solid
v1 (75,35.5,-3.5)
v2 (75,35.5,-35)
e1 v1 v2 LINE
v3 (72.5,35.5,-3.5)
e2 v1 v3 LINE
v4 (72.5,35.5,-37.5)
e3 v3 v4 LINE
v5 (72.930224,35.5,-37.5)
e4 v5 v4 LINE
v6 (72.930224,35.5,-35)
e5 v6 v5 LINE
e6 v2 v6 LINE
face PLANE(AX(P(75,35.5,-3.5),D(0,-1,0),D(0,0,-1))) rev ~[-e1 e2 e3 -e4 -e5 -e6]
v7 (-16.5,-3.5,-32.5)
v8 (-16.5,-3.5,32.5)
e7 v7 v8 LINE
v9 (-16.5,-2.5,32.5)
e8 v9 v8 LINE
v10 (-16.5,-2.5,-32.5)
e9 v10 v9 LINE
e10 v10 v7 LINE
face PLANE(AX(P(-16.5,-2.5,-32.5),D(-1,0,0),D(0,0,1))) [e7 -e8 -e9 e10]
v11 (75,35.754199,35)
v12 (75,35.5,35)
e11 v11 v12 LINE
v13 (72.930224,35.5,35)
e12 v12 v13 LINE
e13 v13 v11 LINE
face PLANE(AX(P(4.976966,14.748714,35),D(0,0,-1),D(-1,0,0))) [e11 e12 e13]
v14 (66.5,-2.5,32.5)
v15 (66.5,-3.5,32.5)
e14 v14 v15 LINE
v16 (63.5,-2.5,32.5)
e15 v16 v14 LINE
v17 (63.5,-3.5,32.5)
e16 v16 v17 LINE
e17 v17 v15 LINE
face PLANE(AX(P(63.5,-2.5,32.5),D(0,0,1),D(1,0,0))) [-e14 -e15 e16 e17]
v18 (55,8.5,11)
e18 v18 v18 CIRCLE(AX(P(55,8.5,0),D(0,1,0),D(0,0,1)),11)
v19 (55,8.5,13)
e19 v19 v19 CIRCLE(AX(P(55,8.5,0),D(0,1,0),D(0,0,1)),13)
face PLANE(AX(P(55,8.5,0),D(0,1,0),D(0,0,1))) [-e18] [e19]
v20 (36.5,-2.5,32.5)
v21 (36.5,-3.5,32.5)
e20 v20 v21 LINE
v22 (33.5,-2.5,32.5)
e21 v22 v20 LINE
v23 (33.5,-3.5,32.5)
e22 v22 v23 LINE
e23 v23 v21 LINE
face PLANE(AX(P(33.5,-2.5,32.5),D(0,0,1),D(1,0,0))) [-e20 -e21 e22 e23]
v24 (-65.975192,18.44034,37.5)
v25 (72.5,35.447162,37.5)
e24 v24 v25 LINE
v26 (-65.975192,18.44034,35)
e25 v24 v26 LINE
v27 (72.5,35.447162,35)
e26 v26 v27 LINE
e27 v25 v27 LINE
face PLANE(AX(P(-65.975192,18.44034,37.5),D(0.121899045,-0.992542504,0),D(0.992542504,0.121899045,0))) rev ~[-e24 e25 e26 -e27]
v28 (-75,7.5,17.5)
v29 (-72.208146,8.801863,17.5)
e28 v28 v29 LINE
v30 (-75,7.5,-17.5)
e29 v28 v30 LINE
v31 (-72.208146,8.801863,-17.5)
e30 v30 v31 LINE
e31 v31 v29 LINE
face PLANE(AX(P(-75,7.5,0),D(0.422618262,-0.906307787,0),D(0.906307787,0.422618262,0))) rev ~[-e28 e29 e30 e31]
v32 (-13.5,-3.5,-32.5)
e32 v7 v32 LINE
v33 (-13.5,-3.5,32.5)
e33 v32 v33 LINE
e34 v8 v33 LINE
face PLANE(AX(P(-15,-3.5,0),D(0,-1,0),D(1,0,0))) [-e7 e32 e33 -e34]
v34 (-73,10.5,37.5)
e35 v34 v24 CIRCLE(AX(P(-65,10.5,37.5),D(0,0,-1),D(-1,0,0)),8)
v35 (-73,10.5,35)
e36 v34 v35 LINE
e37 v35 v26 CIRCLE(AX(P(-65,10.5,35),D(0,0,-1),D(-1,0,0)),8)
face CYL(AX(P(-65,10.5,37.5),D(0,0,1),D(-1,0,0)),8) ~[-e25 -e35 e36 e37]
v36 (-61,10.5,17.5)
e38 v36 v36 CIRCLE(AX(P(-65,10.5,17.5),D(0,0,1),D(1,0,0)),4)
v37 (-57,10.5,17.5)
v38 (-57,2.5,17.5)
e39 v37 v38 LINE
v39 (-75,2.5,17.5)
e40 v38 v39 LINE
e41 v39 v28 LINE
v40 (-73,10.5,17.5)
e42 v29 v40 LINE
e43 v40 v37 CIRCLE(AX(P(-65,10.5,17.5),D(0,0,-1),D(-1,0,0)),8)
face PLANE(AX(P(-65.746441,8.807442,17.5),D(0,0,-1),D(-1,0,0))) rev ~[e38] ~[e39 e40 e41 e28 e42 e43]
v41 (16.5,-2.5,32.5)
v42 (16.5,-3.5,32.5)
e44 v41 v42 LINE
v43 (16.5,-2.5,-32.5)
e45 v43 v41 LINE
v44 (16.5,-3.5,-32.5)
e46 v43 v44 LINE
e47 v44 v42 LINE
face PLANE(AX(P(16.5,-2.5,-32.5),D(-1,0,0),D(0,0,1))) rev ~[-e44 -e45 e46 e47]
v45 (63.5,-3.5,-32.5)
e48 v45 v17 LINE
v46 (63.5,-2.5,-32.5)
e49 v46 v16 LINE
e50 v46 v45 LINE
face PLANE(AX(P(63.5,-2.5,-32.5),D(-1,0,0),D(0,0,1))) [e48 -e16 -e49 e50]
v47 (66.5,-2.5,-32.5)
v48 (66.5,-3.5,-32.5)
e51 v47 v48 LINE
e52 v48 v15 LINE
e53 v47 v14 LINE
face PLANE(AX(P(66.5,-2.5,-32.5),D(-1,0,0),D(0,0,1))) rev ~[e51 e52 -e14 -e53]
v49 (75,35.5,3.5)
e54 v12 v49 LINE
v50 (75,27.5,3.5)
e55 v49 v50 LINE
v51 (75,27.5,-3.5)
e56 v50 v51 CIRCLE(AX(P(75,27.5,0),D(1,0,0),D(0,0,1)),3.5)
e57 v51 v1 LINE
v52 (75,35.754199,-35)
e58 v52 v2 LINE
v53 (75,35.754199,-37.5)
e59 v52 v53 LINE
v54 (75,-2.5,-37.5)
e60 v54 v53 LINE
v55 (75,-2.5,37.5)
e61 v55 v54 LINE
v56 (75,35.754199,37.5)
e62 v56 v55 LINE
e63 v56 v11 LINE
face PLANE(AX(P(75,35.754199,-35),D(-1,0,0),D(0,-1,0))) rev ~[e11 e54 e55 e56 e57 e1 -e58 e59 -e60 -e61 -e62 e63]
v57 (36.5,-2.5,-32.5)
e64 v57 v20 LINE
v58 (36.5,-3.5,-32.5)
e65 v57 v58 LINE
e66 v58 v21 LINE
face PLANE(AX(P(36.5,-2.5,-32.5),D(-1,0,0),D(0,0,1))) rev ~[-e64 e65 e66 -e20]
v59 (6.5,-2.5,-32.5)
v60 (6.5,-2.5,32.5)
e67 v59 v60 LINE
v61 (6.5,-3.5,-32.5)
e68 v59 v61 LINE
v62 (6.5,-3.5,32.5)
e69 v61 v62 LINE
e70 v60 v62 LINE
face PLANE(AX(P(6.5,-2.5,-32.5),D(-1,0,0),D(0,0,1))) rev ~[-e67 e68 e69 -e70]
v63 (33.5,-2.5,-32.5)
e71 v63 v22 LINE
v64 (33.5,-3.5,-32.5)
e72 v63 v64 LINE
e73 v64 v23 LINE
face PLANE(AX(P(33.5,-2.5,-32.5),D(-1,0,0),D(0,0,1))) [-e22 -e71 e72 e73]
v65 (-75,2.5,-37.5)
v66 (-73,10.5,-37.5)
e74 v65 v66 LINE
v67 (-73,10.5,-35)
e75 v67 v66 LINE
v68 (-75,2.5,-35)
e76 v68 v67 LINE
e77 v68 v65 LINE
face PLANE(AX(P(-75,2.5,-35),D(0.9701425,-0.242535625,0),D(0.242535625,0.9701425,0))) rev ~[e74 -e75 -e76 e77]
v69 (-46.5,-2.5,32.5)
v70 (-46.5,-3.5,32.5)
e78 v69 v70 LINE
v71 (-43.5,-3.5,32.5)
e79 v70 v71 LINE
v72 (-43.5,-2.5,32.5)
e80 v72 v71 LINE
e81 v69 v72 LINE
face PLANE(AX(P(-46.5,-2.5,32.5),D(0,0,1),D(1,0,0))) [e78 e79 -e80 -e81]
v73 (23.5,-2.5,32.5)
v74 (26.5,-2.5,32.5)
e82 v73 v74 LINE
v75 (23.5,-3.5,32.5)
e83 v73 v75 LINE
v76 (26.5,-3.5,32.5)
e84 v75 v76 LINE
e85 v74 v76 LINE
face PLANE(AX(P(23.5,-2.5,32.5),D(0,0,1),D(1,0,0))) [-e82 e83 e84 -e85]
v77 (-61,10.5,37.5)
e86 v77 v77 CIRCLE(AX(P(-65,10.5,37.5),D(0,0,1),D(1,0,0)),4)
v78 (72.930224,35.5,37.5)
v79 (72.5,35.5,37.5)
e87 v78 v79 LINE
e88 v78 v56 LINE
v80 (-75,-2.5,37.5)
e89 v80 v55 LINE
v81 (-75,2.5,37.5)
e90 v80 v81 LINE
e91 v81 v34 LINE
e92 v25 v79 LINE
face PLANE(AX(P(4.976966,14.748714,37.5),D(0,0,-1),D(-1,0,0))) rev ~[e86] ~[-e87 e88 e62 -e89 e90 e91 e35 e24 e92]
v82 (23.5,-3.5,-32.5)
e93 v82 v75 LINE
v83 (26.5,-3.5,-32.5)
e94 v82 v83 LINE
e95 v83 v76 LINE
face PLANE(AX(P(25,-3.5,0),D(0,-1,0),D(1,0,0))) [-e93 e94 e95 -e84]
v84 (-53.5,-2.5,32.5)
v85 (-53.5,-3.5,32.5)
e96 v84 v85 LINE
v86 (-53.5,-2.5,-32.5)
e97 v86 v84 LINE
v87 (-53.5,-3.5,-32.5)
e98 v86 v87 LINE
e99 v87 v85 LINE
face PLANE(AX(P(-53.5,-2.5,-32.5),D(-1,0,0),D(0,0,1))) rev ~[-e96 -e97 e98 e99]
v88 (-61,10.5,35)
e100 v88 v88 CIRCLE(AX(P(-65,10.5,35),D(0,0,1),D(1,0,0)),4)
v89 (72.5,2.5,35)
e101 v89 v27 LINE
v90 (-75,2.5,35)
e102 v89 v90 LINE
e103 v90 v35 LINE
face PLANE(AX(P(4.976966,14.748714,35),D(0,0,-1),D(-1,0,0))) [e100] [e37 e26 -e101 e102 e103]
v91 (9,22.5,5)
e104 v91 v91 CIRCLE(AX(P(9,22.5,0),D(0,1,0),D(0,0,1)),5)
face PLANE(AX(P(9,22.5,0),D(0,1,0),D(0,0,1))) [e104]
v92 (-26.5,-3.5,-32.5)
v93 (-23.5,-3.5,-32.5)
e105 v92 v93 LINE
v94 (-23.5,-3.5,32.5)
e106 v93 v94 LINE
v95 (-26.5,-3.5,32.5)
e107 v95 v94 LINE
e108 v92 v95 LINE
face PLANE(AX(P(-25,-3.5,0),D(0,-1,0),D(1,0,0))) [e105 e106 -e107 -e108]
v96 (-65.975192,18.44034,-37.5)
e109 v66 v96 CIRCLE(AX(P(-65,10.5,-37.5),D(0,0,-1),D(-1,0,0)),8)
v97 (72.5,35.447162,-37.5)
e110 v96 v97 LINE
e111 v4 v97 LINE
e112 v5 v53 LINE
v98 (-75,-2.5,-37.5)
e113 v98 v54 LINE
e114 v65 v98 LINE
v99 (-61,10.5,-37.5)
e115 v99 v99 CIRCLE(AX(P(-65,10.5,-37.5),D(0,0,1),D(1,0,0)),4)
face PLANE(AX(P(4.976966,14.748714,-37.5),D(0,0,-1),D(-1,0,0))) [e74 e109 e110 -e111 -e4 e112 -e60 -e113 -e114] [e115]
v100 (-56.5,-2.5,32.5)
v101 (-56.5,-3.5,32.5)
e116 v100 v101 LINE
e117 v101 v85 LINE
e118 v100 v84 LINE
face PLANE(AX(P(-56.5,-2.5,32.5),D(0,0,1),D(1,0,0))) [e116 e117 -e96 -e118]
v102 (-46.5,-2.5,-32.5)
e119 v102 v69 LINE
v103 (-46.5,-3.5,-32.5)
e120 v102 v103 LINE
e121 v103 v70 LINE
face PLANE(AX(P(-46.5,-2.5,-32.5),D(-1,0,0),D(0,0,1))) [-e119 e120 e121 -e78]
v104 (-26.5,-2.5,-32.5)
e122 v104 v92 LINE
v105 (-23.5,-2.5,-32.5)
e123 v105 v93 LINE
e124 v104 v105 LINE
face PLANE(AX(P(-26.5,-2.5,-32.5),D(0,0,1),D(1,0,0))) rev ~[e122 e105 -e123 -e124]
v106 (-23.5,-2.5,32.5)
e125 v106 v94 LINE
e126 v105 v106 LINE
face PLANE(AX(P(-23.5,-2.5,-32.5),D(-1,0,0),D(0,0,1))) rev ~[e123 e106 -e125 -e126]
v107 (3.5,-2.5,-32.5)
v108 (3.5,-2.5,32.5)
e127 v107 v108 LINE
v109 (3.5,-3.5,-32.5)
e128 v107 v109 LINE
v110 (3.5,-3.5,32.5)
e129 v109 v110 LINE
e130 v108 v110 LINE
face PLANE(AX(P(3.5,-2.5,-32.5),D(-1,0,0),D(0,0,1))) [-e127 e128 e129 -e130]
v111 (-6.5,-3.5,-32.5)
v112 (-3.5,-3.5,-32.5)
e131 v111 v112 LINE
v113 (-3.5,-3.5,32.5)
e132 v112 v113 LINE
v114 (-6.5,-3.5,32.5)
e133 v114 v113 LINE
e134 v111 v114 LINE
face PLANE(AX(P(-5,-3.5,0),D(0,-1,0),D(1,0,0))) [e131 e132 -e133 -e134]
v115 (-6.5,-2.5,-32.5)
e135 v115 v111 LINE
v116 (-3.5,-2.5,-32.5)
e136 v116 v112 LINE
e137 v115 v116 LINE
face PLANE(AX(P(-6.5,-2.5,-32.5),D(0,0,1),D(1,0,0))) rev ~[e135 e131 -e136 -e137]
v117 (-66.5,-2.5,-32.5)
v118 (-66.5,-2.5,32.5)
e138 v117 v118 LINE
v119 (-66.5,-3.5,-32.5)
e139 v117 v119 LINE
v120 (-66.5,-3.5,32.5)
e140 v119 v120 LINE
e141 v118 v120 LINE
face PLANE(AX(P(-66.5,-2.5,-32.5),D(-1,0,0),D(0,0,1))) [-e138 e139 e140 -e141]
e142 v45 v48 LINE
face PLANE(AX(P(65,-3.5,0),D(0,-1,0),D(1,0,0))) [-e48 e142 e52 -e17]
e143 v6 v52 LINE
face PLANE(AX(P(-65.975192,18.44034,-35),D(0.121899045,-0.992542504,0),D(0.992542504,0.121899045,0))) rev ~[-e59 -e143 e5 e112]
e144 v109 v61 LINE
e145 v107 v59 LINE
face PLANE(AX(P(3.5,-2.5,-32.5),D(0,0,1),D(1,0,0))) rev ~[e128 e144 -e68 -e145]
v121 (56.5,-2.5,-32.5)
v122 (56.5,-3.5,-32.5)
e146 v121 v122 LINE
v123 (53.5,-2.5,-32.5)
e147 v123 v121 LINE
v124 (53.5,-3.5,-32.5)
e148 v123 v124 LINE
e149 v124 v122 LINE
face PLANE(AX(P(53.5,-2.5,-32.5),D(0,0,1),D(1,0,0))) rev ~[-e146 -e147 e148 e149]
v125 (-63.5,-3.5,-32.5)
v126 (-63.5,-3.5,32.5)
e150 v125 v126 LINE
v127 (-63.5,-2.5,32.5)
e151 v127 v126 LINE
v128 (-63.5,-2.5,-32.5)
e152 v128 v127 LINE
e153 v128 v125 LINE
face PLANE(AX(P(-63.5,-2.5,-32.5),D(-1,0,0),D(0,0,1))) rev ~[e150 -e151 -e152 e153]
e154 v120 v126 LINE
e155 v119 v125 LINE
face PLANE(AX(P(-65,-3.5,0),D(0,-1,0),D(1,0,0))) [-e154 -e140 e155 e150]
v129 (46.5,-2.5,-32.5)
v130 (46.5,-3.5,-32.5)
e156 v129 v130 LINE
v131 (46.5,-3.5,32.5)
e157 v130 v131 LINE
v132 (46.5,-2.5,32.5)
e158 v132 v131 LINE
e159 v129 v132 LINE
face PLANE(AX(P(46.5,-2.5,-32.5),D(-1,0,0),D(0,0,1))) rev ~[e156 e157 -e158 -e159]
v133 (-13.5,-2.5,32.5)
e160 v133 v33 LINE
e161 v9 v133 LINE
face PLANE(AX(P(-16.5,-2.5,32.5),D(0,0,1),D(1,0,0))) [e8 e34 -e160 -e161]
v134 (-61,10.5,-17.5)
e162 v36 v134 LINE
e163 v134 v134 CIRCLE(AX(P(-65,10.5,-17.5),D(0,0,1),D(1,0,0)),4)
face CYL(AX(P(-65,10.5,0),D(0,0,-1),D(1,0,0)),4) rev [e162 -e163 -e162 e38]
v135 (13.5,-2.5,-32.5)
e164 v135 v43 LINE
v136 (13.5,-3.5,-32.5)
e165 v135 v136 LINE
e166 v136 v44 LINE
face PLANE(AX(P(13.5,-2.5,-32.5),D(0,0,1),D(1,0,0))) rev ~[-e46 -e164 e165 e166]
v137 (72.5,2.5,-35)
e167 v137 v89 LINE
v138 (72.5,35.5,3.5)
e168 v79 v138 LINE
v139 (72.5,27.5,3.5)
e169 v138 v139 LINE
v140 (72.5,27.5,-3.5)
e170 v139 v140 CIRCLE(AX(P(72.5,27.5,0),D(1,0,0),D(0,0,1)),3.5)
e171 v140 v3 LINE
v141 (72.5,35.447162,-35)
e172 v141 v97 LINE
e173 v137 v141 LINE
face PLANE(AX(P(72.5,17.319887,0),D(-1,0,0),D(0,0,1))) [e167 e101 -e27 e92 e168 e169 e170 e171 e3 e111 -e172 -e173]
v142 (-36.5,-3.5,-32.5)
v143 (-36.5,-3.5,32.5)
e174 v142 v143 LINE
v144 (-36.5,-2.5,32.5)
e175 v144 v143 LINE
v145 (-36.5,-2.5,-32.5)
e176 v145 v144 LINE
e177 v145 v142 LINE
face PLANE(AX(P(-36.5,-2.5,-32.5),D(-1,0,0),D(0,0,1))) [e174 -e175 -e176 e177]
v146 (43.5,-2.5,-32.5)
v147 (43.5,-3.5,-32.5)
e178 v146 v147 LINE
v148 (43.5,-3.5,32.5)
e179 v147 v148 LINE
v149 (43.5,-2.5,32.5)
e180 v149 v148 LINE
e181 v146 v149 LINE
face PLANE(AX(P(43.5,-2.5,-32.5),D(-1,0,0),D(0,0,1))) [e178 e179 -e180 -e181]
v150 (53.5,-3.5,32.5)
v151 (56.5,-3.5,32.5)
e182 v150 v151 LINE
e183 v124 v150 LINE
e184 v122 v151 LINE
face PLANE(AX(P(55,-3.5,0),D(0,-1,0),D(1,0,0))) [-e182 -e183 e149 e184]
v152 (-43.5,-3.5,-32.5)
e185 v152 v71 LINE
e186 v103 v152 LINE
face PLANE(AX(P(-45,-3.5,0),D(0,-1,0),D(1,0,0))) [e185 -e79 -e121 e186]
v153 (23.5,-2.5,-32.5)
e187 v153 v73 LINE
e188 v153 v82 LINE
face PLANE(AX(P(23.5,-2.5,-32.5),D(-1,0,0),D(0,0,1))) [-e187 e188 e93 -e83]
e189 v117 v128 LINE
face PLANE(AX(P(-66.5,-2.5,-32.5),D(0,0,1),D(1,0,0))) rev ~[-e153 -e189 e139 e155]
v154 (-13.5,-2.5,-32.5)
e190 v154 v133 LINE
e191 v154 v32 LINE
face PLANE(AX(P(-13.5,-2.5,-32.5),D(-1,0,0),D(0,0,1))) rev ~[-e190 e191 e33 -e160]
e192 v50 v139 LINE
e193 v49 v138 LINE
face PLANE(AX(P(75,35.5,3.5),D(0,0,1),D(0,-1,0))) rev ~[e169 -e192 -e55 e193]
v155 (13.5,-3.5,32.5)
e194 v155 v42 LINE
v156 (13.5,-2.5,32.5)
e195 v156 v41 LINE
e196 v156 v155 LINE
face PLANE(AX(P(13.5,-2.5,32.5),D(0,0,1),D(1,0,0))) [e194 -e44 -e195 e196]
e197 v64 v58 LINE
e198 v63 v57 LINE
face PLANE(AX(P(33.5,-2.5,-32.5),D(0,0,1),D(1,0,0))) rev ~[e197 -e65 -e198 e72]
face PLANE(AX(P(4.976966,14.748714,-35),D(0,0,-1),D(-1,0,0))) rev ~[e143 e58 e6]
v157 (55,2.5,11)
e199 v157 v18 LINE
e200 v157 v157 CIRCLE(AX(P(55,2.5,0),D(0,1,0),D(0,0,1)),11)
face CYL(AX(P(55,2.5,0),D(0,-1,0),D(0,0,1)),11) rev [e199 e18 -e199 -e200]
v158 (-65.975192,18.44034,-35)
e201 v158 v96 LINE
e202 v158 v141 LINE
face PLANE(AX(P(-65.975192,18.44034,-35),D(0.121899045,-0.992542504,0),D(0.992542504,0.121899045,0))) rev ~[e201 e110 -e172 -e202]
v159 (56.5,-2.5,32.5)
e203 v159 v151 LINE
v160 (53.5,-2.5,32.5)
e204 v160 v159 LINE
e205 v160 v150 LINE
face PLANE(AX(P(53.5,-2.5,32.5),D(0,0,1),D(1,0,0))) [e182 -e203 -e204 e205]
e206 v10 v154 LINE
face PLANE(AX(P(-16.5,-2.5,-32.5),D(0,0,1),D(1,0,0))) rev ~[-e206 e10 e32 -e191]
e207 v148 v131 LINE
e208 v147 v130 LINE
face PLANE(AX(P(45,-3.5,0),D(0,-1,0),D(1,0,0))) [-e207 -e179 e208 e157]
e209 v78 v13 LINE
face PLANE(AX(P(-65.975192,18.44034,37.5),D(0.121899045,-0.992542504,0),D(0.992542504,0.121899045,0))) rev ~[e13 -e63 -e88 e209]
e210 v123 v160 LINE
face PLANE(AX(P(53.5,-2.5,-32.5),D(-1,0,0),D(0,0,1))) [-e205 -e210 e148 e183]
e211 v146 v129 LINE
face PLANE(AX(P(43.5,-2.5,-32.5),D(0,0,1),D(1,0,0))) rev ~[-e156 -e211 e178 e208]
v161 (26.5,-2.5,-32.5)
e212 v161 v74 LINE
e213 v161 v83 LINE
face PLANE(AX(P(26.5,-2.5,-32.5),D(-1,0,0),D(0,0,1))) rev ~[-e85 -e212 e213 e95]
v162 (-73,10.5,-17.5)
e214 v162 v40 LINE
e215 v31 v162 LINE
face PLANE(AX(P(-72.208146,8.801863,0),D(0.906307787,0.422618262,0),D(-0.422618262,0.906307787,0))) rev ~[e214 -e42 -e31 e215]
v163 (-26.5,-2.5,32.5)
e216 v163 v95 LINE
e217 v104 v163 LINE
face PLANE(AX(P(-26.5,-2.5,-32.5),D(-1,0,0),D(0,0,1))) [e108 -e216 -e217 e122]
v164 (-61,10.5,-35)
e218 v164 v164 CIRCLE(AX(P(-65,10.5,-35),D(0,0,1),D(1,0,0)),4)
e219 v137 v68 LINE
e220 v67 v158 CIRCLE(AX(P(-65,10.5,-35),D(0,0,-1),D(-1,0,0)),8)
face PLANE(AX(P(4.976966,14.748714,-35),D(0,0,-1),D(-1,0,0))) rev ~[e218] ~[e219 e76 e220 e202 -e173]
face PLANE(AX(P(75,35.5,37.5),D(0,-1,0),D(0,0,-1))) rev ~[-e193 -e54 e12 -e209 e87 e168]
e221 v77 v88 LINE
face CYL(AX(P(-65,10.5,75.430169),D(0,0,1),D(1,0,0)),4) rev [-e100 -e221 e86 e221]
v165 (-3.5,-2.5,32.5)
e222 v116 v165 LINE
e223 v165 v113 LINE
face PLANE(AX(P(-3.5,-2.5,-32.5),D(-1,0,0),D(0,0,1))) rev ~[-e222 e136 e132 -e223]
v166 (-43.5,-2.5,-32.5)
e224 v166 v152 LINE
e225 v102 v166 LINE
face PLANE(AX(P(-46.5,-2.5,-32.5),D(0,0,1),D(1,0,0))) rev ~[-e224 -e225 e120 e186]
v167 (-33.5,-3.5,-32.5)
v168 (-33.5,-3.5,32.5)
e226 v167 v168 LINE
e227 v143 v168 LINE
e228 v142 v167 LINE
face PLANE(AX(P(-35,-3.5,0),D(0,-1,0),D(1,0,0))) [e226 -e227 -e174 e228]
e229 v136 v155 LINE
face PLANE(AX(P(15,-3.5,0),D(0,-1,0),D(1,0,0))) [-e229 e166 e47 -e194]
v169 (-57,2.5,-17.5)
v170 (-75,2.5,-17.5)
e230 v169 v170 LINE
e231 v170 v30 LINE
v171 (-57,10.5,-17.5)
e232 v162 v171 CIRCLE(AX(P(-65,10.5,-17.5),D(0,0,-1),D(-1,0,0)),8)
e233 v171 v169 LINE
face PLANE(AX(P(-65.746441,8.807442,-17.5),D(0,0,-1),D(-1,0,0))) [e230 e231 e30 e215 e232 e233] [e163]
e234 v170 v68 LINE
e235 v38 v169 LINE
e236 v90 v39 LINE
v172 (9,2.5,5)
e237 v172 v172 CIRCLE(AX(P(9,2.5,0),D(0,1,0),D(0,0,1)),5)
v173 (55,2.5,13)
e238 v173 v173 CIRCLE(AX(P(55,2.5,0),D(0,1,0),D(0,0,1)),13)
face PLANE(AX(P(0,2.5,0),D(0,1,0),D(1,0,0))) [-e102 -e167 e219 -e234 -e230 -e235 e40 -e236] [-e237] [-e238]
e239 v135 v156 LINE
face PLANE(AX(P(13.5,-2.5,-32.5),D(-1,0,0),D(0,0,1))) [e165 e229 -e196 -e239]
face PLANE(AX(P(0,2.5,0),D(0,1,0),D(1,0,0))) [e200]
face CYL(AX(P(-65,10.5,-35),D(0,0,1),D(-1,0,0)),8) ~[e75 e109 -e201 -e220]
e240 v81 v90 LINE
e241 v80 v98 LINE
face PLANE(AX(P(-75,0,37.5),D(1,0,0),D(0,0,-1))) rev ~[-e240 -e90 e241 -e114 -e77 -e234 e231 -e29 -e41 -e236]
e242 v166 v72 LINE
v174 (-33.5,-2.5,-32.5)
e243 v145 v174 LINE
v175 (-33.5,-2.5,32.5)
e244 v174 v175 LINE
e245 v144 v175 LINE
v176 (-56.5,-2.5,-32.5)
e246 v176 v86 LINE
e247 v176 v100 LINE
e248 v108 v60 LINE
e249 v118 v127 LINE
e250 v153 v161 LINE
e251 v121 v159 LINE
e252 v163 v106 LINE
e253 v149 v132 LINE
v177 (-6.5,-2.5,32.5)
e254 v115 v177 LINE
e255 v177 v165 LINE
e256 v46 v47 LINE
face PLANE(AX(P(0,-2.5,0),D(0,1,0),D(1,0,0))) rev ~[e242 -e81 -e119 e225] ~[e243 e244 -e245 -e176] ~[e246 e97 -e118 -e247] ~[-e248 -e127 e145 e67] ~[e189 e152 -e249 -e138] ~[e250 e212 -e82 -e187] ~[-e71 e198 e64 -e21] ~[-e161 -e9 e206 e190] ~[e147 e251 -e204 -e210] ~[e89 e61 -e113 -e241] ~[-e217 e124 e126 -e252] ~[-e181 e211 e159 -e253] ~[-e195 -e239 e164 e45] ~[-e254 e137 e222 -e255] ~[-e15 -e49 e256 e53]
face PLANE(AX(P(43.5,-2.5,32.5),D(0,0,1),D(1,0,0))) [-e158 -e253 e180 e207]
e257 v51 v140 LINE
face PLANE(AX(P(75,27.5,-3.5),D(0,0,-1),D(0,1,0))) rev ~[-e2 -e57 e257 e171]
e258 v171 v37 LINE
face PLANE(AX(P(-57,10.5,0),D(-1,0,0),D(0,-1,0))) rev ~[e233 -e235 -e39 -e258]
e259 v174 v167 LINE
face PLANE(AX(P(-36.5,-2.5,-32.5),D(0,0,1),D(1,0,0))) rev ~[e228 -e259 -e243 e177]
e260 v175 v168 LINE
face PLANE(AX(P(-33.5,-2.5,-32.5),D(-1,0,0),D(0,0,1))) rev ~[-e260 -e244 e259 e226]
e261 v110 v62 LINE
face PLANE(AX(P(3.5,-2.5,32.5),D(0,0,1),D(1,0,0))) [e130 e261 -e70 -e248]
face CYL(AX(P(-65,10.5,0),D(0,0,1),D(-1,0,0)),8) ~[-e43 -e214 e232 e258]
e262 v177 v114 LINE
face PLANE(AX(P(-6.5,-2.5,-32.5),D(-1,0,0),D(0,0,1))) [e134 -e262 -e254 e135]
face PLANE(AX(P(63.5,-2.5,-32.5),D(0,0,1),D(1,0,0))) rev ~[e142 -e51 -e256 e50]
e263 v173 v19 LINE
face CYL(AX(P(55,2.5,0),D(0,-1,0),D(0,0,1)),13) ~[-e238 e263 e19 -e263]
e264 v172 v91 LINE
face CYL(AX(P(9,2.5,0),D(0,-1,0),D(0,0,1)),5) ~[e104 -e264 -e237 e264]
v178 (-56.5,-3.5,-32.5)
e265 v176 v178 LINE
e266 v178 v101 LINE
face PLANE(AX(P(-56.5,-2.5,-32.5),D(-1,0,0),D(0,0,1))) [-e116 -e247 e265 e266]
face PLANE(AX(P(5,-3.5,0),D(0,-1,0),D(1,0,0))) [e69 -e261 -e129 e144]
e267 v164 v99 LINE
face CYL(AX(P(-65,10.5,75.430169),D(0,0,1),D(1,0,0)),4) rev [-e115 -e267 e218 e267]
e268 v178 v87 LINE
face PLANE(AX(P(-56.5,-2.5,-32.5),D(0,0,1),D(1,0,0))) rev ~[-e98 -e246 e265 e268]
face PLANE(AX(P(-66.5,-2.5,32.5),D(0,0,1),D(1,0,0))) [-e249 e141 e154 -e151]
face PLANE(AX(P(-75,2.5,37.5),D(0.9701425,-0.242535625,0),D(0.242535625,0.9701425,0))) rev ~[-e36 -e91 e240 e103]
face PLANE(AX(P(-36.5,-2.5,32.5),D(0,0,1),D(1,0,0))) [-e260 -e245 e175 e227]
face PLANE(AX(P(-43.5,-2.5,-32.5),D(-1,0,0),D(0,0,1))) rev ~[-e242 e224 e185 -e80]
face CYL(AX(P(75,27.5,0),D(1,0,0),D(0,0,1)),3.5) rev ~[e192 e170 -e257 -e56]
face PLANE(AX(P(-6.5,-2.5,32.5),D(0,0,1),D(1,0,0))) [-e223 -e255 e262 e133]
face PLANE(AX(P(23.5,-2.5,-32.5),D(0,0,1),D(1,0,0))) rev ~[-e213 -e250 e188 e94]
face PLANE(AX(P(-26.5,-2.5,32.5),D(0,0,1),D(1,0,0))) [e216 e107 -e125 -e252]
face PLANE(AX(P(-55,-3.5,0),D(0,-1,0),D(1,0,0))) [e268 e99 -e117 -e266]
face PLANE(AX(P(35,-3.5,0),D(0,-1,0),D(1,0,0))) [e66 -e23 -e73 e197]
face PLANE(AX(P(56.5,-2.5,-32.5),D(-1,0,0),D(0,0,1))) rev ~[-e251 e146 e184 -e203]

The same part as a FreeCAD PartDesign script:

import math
import FreeCAD as App
import Part
import Sketcher
Q = App.Units.Quantity

doc = App.newDocument("Part")
body = doc.addObject("PartDesign::Body", "Body")

# Sketch on XZ plane
sketch1 = body.newObject("Sketcher::SketchObject", "Sketch")
sketch1.AttachmentSupport = (doc.getObject("XZ_Plane"), [""])
sketch1.MapMode = "FlatFace"
sketch1.addGeometry([
    Part.LineSegment(App.Vector(-75, -38, 0), App.Vector(-75, 38, 0)),
    Part.LineSegment(App.Vector(-75, 38, 0), App.Vector(75, 38, 0)),
    Part.LineSegment(App.Vector(75, 38, 0), App.Vector(75, -38, 0)),
    Part.LineSegment(App.Vector(75, -38, 0), App.Vector(-75, -38, 0)),
], False)
sketch1.addConstraint([
    Sketcher.Constraint("Coincident", 0, 2, 1, 1),
    Sketcher.Constraint("Coincident", 1, 2, 2, 1),
    Sketcher.Constraint("Coincident", 2, 2, 3, 1),
    Sketcher.Constraint("Coincident", 3, 2, 0, 1),
    Sketcher.Constraint("Vertical", 0),
    Sketcher.Constraint("Horizontal", 1),
    Sketcher.Constraint("Vertical", 2),
    Sketcher.Constraint("Horizontal", 3),
    Sketcher.Constraint("Symmetric", 0, 2, 2, 2, -1, 1),
    Sketcher.Constraint("DistanceX", 1, 1, 1, 2, 150.0),
    Sketcher.Constraint("DistanceY", 0, 1, 0, 2, 75.0),
])
pad1 = body.newObject("PartDesign::Pad", "Pad")
pad1.Profile = sketch1
pad1.Length = 5
pad1.Midplane = True

# Sketch on XY plane
sketch2 = body.newObject("Sketcher::SketchObject", "Sketch001")
sketch2.AttachmentSupport = (doc.getObject("XY_Plane"), [""])
sketch2.MapMode = "FlatFace"
sketch2.addGeometry([
    Part.LineSegment(App.Vector(-57, 2.5, 0), App.Vector(-57, 10.5, 0)),  # 0
    Part.ArcOfCircle(Part.Circle(App.Vector(-65, 10.5, 0), App.Vector(0, 0, 1), 8), math.radians(0), math.radians(180)),  # 1
    Part.LineSegment(App.Vector(-73, 10.5, 0), App.Vector(-72.2, 8.8, 0)),  # 2
    Part.LineSegment(App.Vector(-72.2, 8.8, 0), App.Vector(-75, 7.5, 0)),  # 3
    Part.LineSegment(App.Vector(-75, 7.5, 0), App.Vector(-75, 2.5, 0)),  # 4
    Part.LineSegment(App.Vector(-75, 2.5, 0), App.Vector(-57, 2.5, 0)),  # 5
    Part.Circle(App.Vector(-65, 10.5, 0), App.Vector(0, 0, 1), 4),  # 6
], False)
sketch2.addConstraint([
    Sketcher.Constraint("Tangent", 0, 2, 1, 1),
    Sketcher.Constraint("Coincident", 1, 2, 2, 1),
    Sketcher.Constraint("Coincident", 2, 2, 3, 1),
    Sketcher.Constraint("Coincident", 3, 2, 4, 1),
    Sketcher.Constraint("Coincident", 4, 2, 5, 1),
    Sketcher.Constraint("Coincident", 5, 2, 0, 1),
    Sketcher.Constraint("Vertical", 0),
    Sketcher.Constraint("Vertical", 4),
    Sketcher.Constraint("Horizontal", 5),
    Sketcher.Constraint("Coincident", 6, 3, 1, 3),
    Sketcher.Constraint("Perpendicular", 2, 3),
    Sketcher.Constraint("Horizontal", 0, 2, 1, 2),
    Sketcher.Constraint("Diameter", 6, 8.0),
    Sketcher.Constraint("Radius", 1, 8.0),
    Sketcher.Constraint("DistanceX", 5, 1, 5, 2, 18.0),
    Sketcher.Constraint("DistanceY", 0, 1, 0, 2, 8.0),
    Sketcher.Constraint("DistanceY", 4, 2, 4, 1, 5.0),
    Sketcher.Constraint("Angle", 2, Q("-65 deg")),
    Sketcher.Constraint("DistanceX", 1, 3, -1, 1, 65.0),
    Sketcher.Constraint("DistanceY", -1, 1, 1, 3, 10.5),
])
pad2 = body.newObject("PartDesign::Pad", "Pad001")
pad2.Profile = sketch2
pad2.Length = 35
pad2.Midplane = True

# Sketch on XZ plane
sketch3 = body.newObject("Sketcher::SketchObject", "Sketch002")
sketch3.AttachmentSupport = (doc.getObject("XZ_Plane"), [""])
sketch3.MapMode = "FlatFace"
sketch3.AttachmentOffset = App.Placement(App.Vector(0, 0, -2.5), App.Rotation())
sketch3.addGeometry(Part.Circle(App.Vector(9, 0, 0), App.Vector(0, 0, 1), 5), False)
sketch3.addConstraint([
    Sketcher.Constraint("PointOnObject", 0, 3, -1),
    Sketcher.Constraint("Diameter", 0, 10.0),
    Sketcher.Constraint("DistanceX", -1, 1, 0, 3, 9.0),
])
pad3 = body.newObject("PartDesign::Pad", "Pad002")
pad3.Profile = sketch3
pad3.Length = 20
pad3.Reversed = True

# Sketch on XZ plane
sketch4 = body.newObject("Sketcher::SketchObject", "Sketch003")
sketch4.AttachmentSupport = (doc.getObject("XZ_Plane"), [""])
sketch4.MapMode = "FlatFace"
sketch4.AttachmentOffset = App.Placement(App.Vector(0, 0, -2.5), App.Rotation())
sketch4.addGeometry([
    Part.Circle(App.Vector(55, 0, 0), App.Vector(0, 0, 1), 13),
    Part.Circle(App.Vector(55, 0, 0), App.Vector(0, 0, 1), 11),
], False)
sketch4.addConstraint([
    Sketcher.Constraint("Coincident", 1, 3, 0, 3),
    Sketcher.Constraint("PointOnObject", 0, 3, -1),
    Sketcher.Constraint("Diameter", 0, 26.0),
    Sketcher.Constraint("Diameter", 1, 22.0),
    Sketcher.Constraint("DistanceX", -1, 1, 0, 3, 55.0),
])
pad4 = body.newObject("PartDesign::Pad", "Pad003")
pad4.Profile = sketch4
pad4.Length = 6
pad4.Reversed = True

# Sketch on XY plane
sketch5 = body.newObject("Sketcher::SketchObject", "Sketch004")
sketch5.AttachmentSupport = (doc.getObject("XY_Plane"), [""])
sketch5.MapMode = "FlatFace"
sketch5.AttachmentOffset = App.Placement(App.Vector(0, 0, 37.5), App.Rotation())
sketch5.addGeometry([
    Part.LineSegment(App.Vector(75, 2, 0), App.Vector(75, 36, 0)),  # 0
    Part.LineSegment(App.Vector(75, 36, 0), App.Vector(-66, 18, 0)),  # 1
    Part.ArcOfCircle(Part.Circle(App.Vector(-65, 11, 0), App.Vector(0, 0, 1), 8), math.radians(97), math.radians(180)),  # 2
    Part.LineSegment(App.Vector(-73, 10, 0), App.Vector(-75, 2, 0)),  # 3
    Part.LineSegment(App.Vector(-75, 2, 0), App.Vector(75, 2, 0)),  # 4
], False)
sketch5.addConstraint([
    Sketcher.Constraint("Coincident", 0, 2, 1, 1),
    Sketcher.Constraint("Tangent", 1, 2, 2, 1),
    Sketcher.Constraint("Coincident", 2, 2, 3, 1),
    Sketcher.Constraint("Coincident", 3, 2, 4, 1),
    Sketcher.Constraint("Coincident", 4, 2, 0, 1),
    Sketcher.Constraint("Vertical", 0),
    Sketcher.Constraint("Horizontal", 4),
    Sketcher.Constraint("Radius", 2, 8.0),
    Sketcher.Constraint("DistanceX", 4, 1, 4, 2, 150.0),
    Sketcher.Constraint("DistanceX", 2, 3, -1, 1, 65.0),
    Sketcher.Constraint("DistanceX", -1, 1, 0, 2, 75.0),
    Sketcher.Constraint("DistanceY", 3, 2, 2, 2, 8.0),
    Sketcher.Constraint("DistanceY", 3, 2, 2, 3, 8.0),
    Sketcher.Constraint("DistanceY", -1, 1, 2, 3, 10.5),
    Sketcher.Constraint("DistanceY", 0, 1, 0, 2, 33.254199),
])
pad5 = body.newObject("PartDesign::Pad", "Pad004")
pad5.Profile = sketch5
pad5.Length = 2.5
pad5.Reversed = True

# Sketch on XY plane
sketch6 = body.newObject("Sketcher::SketchObject", "Sketch005")
sketch6.AttachmentSupport = (doc.getObject("XY_Plane"), [""])
sketch6.MapMode = "FlatFace"
sketch6.AttachmentOffset = App.Placement(App.Vector(0, 0, -35), App.Rotation())
sketch6.addGeometry([
    Part.LineSegment(App.Vector(75, 2, 0), App.Vector(75, 36, 0)),  # 0
    Part.LineSegment(App.Vector(75, 36, 0), App.Vector(-66, 18, 0)),  # 1
    Part.ArcOfCircle(Part.Circle(App.Vector(-65, 11, 0), App.Vector(0, 0, 1), 8), math.radians(97), math.radians(180)),  # 2
    Part.LineSegment(App.Vector(-73, 10, 0), App.Vector(-75, 2, 0)),  # 3
    Part.LineSegment(App.Vector(-75, 2, 0), App.Vector(75, 2, 0)),  # 4
], False)
sketch6.addConstraint([
    Sketcher.Constraint("Coincident", 0, 2, 1, 1),
    Sketcher.Constraint("Tangent", 1, 2, 2, 1),
    Sketcher.Constraint("Coincident", 2, 2, 3, 1),
    Sketcher.Constraint("Coincident", 3, 2, 4, 1),
    Sketcher.Constraint("Coincident", 4, 2, 0, 1),
    Sketcher.Constraint("Vertical", 0),
    Sketcher.Constraint("Horizontal", 4),
    Sketcher.Constraint("Radius", 2, 8.0),
    Sketcher.Constraint("DistanceX", 4, 1, 4, 2, 150.0),
    Sketcher.Constraint("DistanceX", 2, 3, -1, 1, 65.0),
    Sketcher.Constraint("DistanceX", -1, 1, 0, 2, 75.0),
    Sketcher.Constraint("DistanceY", 3, 2, 2, 2, 8.0),
    Sketcher.Constraint("DistanceY", 3, 2, 2, 3, 8.0),
    Sketcher.Constraint("DistanceY", -1, 1, 2, 3, 10.5),
    Sketcher.Constraint("DistanceY", 0, 1, 0, 2, 33.254199),
])
pad6 = body.newObject("PartDesign::Pad", "Pad005")
pad6.Profile = sketch6
pad6.Length = 2.5
pad6.Reversed = True

# Sketch on YZ plane
sketch7 = body.newObject("Sketcher::SketchObject", "Sketch006")
sketch7.AttachmentSupport = (doc.getObject("YZ_Plane"), [""])
sketch7.MapMode = "FlatFace"
sketch7.AttachmentOffset = App.Placement(App.Vector(0, 0, 75), App.Rotation())
sketch7.addGeometry([
    Part.LineSegment(App.Vector(-2.5, -37.5, 0), App.Vector(35.5, -37.5, 0)),  # 0
    Part.LineSegment(App.Vector(35.5, -37.5, 0), App.Vector(35.5, -3.5, 0)),  # 1
    Part.LineSegment(App.Vector(35.5, -3.5, 0), App.Vector(27.5, -3.5, 0)),  # 2
    Part.ArcOfCircle(Part.Circle(App.Vector(27.5, 0, 0), App.Vector(0, 0, 1), 3.5), math.radians(90), math.radians(270)),  # 3
    Part.LineSegment(App.Vector(27.5, 3.5, 0), App.Vector(35.5, 3.5, 0)),  # 4
    Part.LineSegment(App.Vector(35.5, 3.5, 0), App.Vector(35.5, 37.5, 0)),  # 5
    Part.LineSegment(App.Vector(35.5, 37.5, 0), App.Vector(-2.5, 37.5, 0)),  # 6
    Part.LineSegment(App.Vector(-2.5, 37.5, 0), App.Vector(-2.5, -37.5, 0)),  # 7
], False)
sketch7.addConstraint([
    Sketcher.Constraint("Coincident", 0, 2, 1, 1),
    Sketcher.Constraint("Coincident", 1, 2, 2, 1),
    Sketcher.Constraint("Tangent", 2, 2, 3, 2),
    Sketcher.Constraint("Tangent", 3, 1, 4, 1),
    Sketcher.Constraint("Coincident", 4, 2, 5, 1),
    Sketcher.Constraint("Coincident", 5, 2, 6, 1),
    Sketcher.Constraint("Coincident", 6, 2, 7, 1),
    Sketcher.Constraint("Coincident", 7, 2, 0, 1),
    Sketcher.Constraint("Horizontal", 0),
    Sketcher.Constraint("Vertical", 1),
    Sketcher.Constraint("Horizontal", 2),
    Sketcher.Constraint("Horizontal", 4),
    Sketcher.Constraint("Vertical", 5),
    Sketcher.Constraint("Horizontal", 6),
    Sketcher.Constraint("Vertical", 7),
    Sketcher.Constraint("Symmetric", 1, 2, 4, 2, -1),
    Sketcher.Constraint("Equal", 1, 5),
    Sketcher.Constraint("Radius", 3, 3.5),
    Sketcher.Constraint("DistanceX", 0, 1, 0, 2, 38.0),
    Sketcher.Constraint("DistanceX", 2, 2, 2, 1, 8.0),
    Sketcher.Constraint("DistanceY", 1, 1, 1, 2, 34.0),
    Sketcher.Constraint("DistanceX", -1, 1, 3, 3, 27.5),
])
pad7 = body.newObject("PartDesign::Pad", "Pad006")
pad7.Profile = sketch7
pad7.Length = 2.5
pad7.Reversed = True

# Sketch on XZ plane
sketch8 = body.newObject("Sketcher::SketchObject", "Sketch007")
sketch8.AttachmentSupport = (doc.getObject("XZ_Plane"), [""])
sketch8.MapMode = "FlatFace"
sketch8.AttachmentOffset = App.Placement(App.Vector(0, 0, 2.5), App.Rotation())
sketch8.addGeometry([
    Part.LineSegment(App.Vector(-46.5, 32.5, 0), App.Vector(-46.5, -32.5, 0)),  # 0
    Part.LineSegment(App.Vector(-46.5, -32.5, 0), App.Vector(-43.5, -32.5, 0)),  # 1
    Part.LineSegment(App.Vector(-43.5, -32.5, 0), App.Vector(-43.5, 32.5, 0)),  # 2
    Part.LineSegment(App.Vector(-43.5, 32.5, 0), App.Vector(-46.5, 32.5, 0)),  # 3
    Part.LineSegment(App.Vector(-36.5, 32.5, 0), App.Vector(-36.5, -32.5, 0)),  # 4
    Part.LineSegment(App.Vector(-36.5, -32.5, 0), App.Vector(-33.5, -32.5, 0)),  # 5
    Part.LineSegment(App.Vector(-33.5, -32.5, 0), App.Vector(-33.5, 32.5, 0)),  # 6
    Part.LineSegment(App.Vector(-33.5, 32.5, 0), App.Vector(-36.5, 32.5, 0)),  # 7
    Part.LineSegment(App.Vector(-26.5, 32.5, 0), App.Vector(-26.5, -32.5, 0)),  # 8
    Part.LineSegment(App.Vector(-26.5, -32.5, 0), App.Vector(-23.5, -32.5, 0)),  # 9
    Part.LineSegment(App.Vector(-23.5, -32.5, 0), App.Vector(-23.5, 32.5, 0)),  # 10
    Part.LineSegment(App.Vector(-23.5, 32.5, 0), App.Vector(-26.5, 32.5, 0)),  # 11
    Part.LineSegment(App.Vector(-16.5, 32.5, 0), App.Vector(-16.5, -32.5, 0)),  # 12
    Part.LineSegment(App.Vector(-16.5, -32.5, 0), App.Vector(-13.5, -32.5, 0)),  # 13
    Part.LineSegment(App.Vector(-13.5, -32.5, 0), App.Vector(-13.5, 32.5, 0)),  # 14
    Part.LineSegment(App.Vector(-13.5, 32.5, 0), App.Vector(-16.5, 32.5, 0)),  # 15
    Part.LineSegment(App.Vector(-6.5, 32.5, 0), App.Vector(-6.5, -32.5, 0)),  # 16
    Part.LineSegment(App.Vector(-6.5, -32.5, 0), App.Vector(-3.5, -32.5, 0)),  # 17
    Part.LineSegment(App.Vector(-3.5, -32.5, 0), App.Vector(-3.5, 32.5, 0)),  # 18
    Part.LineSegment(App.Vector(-3.5, 32.5, 0), App.Vector(-6.5, 32.5, 0)),  # 19
    Part.LineSegment(App.Vector(3.5, 32.5, 0), App.Vector(3.5, -32.5, 0)),  # 20
    Part.LineSegment(App.Vector(3.5, -32.5, 0), App.Vector(6.5, -32.5, 0)),  # 21
    Part.LineSegment(App.Vector(6.5, -32.5, 0), App.Vector(6.5, 32.5, 0)),  # 22
    Part.LineSegment(App.Vector(6.5, 32.5, 0), App.Vector(3.5, 32.5, 0)),  # 23
    Part.LineSegment(App.Vector(13.5, 32.5, 0), App.Vector(13.5, -32.5, 0)),  # 24
    Part.LineSegment(App.Vector(13.5, -32.5, 0), App.Vector(16.5, -32.5, 0)),  # 25
    Part.LineSegment(App.Vector(16.5, -32.5, 0), App.Vector(16.5, 32.5, 0)),  # 26
    Part.LineSegment(App.Vector(16.5, 32.5, 0), App.Vector(13.5, 32.5, 0)),  # 27
    Part.LineSegment(App.Vector(23.5, 32.5, 0), App.Vector(23.5, -32.5, 0)),  # 28
    Part.LineSegment(App.Vector(23.5, -32.5, 0), App.Vector(26.5, -32.5, 0)),  # 29
    Part.LineSegment(App.Vector(26.5, -32.5, 0), App.Vector(26.5, 32.5, 0)),  # 30
    Part.LineSegment(App.Vector(26.5, 32.5, 0), App.Vector(23.5, 32.5, 0)),  # 31
    Part.LineSegment(App.Vector(33.5, 32.5, 0), App.Vector(33.5, -32.5, 0)),  # 32
    Part.LineSegment(App.Vector(33.5, -32.5, 0), App.Vector(36.5, -32.5, 0)),  # 33
    Part.LineSegment(App.Vector(36.5, -32.5, 0), App.Vector(36.5, 32.5, 0)),  # 34
    Part.LineSegment(App.Vector(36.5, 32.5, 0), App.Vector(33.5, 32.5, 0)),  # 35
    Part.LineSegment(App.Vector(43.5, 32.5, 0), App.Vector(43.5, -32.5, 0)),  # 36
    Part.LineSegment(App.Vector(43.5, -32.5, 0), App.Vector(46.5, -32.5, 0)),  # 37
    Part.LineSegment(App.Vector(46.5, -32.5, 0), App.Vector(46.5, 32.5, 0)),  # 38
    Part.LineSegment(App.Vector(46.5, 32.5, 0), App.Vector(43.5, 32.5, 0)),  # 39
    Part.LineSegment(App.Vector(53.5, 32.5, 0), App.Vector(53.5, -32.5, 0)),  # 40
    Part.LineSegment(App.Vector(53.5, -32.5, 0), App.Vector(56.5, -32.5, 0)),  # 41
    Part.LineSegment(App.Vector(56.5, -32.5, 0), App.Vector(56.5, 32.5, 0)),  # 42
    Part.LineSegment(App.Vector(56.5, 32.5, 0), App.Vector(53.5, 32.5, 0)),  # 43
    Part.LineSegment(App.Vector(63.5, 32.5, 0), App.Vector(63.5, -32.5, 0)),  # 44
    Part.LineSegment(App.Vector(63.5, -32.5, 0), App.Vector(66.5, -32.5, 0)),  # 45
    Part.LineSegment(App.Vector(66.5, -32.5, 0), App.Vector(66.5, 32.5, 0)),  # 46
    Part.LineSegment(App.Vector(66.5, 32.5, 0), App.Vector(63.5, 32.5, 0)),  # 47
    Part.LineSegment(App.Vector(-66.5, 32.5, 0), App.Vector(-66.5, -32.5, 0)),  # 48
    Part.LineSegment(App.Vector(-66.5, -32.5, 0), App.Vector(-63.5, -32.5, 0)),  # 49
    Part.LineSegment(App.Vector(-63.5, -32.5, 0), App.Vector(-63.5, 32.5, 0)),  # 50
    Part.LineSegment(App.Vector(-63.5, 32.5, 0), App.Vector(-66.5, 32.5, 0)),  # 51
    Part.LineSegment(App.Vector(-56.5, 32.5, 0), App.Vector(-56.5, -32.5, 0)),  # 52
    Part.LineSegment(App.Vector(-56.5, -32.5, 0), App.Vector(-53.5, -32.5, 0)),  # 53
    Part.LineSegment(App.Vector(-53.5, -32.5, 0), App.Vector(-53.5, 32.5, 0)),  # 54
    Part.LineSegment(App.Vector(-53.5, 32.5, 0), App.Vector(-56.5, 32.5, 0)),  # 55
], False)
sketch8.addConstraint([
    Sketcher.Constraint("Coincident", 0, 2, 1, 1),
    Sketcher.Constraint("Coincident", 1, 2, 2, 1),
    Sketcher.Constraint("Coincident", 2, 2, 3, 1),
    Sketcher.Constraint("Coincident", 3, 2, 0, 1),
    Sketcher.Constraint("Coincident", 4, 2, 5, 1),
    Sketcher.Constraint("Coincident", 5, 2, 6, 1),
    Sketcher.Constraint("Coincident", 6, 2, 7, 1),
    Sketcher.Constraint("Coincident", 7, 2, 4, 1),
    Sketcher.Constraint("Coincident", 8, 2, 9, 1),
    Sketcher.Constraint("Coincident", 9, 2, 10, 1),
    Sketcher.Constraint("Coincident", 10, 2, 11, 1),
    Sketcher.Constraint("Coincident", 11, 2, 8, 1),
    Sketcher.Constraint("Coincident", 12, 2, 13, 1),
    Sketcher.Constraint("Coincident", 13, 2, 14, 1),
    Sketcher.Constraint("Coincident", 14, 2, 15, 1),
    Sketcher.Constraint("Coincident", 15, 2, 12, 1),
    Sketcher.Constraint("Coincident", 16, 2, 17, 1),
    Sketcher.Constraint("Coincident", 17, 2, 18, 1),
    Sketcher.Constraint("Coincident", 18, 2, 19, 1),
    Sketcher.Constraint("Coincident", 19, 2, 16, 1),
    Sketcher.Constraint("Coincident", 20, 2, 21, 1),
    Sketcher.Constraint("Coincident", 21, 2, 22, 1),
    Sketcher.Constraint("Coincident", 22, 2, 23, 1),
    Sketcher.Constraint("Coincident", 23, 2, 20, 1),
    Sketcher.Constraint("Coincident", 24, 2, 25, 1),
    Sketcher.Constraint("Coincident", 25, 2, 26, 1),
    Sketcher.Constraint("Coincident", 26, 2, 27, 1),
    Sketcher.Constraint("Coincident", 27, 2, 24, 1),
    Sketcher.Constraint("Coincident", 28, 2, 29, 1),
    Sketcher.Constraint("Coincident", 29, 2, 30, 1),
    Sketcher.Constraint("Coincident", 30, 2, 31, 1),
    Sketcher.Constraint("Coincident", 31, 2, 28, 1),
    Sketcher.Constraint("Coincident", 32, 2, 33, 1),
    Sketcher.Constraint("Coincident", 33, 2, 34, 1),
    Sketcher.Constraint("Coincident", 34, 2, 35, 1),
    Sketcher.Constraint("Coincident", 35, 2, 32, 1),
    Sketcher.Constraint("Coincident", 36, 2, 37, 1),
    Sketcher.Constraint("Coincident", 37, 2, 38, 1),
    Sketcher.Constraint("Coincident", 38, 2, 39, 1),
    Sketcher.Constraint("Coincident", 39, 2, 36, 1),
    Sketcher.Constraint("Coincident", 40, 2, 41, 1),
    Sketcher.Constraint("Coincident", 41, 2, 42, 1),
    Sketcher.Constraint("Coincident", 42, 2, 43, 1),
    Sketcher.Constraint("Coincident", 43, 2, 40, 1),
    Sketcher.Constraint("Coincident", 44, 2, 45, 1),
    Sketcher.Constraint("Coincident", 45, 2, 46, 1),
    Sketcher.Constraint("Coincident", 46, 2, 47, 1),
    Sketcher.Constraint("Coincident", 47, 2, 44, 1),
    Sketcher.Constraint("Coincident", 48, 2, 49, 1),
    Sketcher.Constraint("Coincident", 49, 2, 50, 1),
    Sketcher.Constraint("Coincident", 50, 2, 51, 1),
    Sketcher.Constraint("Coincident", 51, 2, 48, 1),
    Sketcher.Constraint("Coincident", 52, 2, 53, 1),
    Sketcher.Constraint("Coincident", 53, 2, 54, 1),
    Sketcher.Constraint("Coincident", 54, 2, 55, 1),
    Sketcher.Constraint("Coincident", 55, 2, 52, 1),
    Sketcher.Constraint("Vertical", 0),
    Sketcher.Constraint("Horizontal", 1),
    Sketcher.Constraint("Vertical", 2),
    Sketcher.Constraint("Horizontal", 3),
    Sketcher.Constraint("Vertical", 4),
    Sketcher.Constraint("Horizontal", 5),
    Sketcher.Constraint("Vertical", 6),
    Sketcher.Constraint("Horizontal", 7),
    Sketcher.Constraint("Vertical", 8),
    Sketcher.Constraint("Horizontal", 9),
    Sketcher.Constraint("Vertical", 10),
    Sketcher.Constraint("Horizontal", 11),
    Sketcher.Constraint("Vertical", 12),
    Sketcher.Constraint("Horizontal", 13),
    Sketcher.Constraint("Vertical", 14),
    Sketcher.Constraint("Horizontal", 15),
    Sketcher.Constraint("Vertical", 16),
    Sketcher.Constraint("Horizontal", 17),
    Sketcher.Constraint("Vertical", 18),
    Sketcher.Constraint("Horizontal", 19),
    Sketcher.Constraint("Vertical", 20),
    Sketcher.Constraint("Horizontal", 21),
    Sketcher.Constraint("Vertical", 22),
    Sketcher.Constraint("Horizontal", 23),
    Sketcher.Constraint("Vertical", 24),
    Sketcher.Constraint("Horizontal", 25),
    Sketcher.Constraint("Vertical", 26),
    Sketcher.Constraint("Horizontal", 27),
    Sketcher.Constraint("Vertical", 28),
    Sketcher.Constraint("Horizontal", 29),
    Sketcher.Constraint("Vertical", 30),
    Sketcher.Constraint("Horizontal", 31),
    Sketcher.Constraint("Vertical", 32),
    Sketcher.Constraint("Horizontal", 33),
    Sketcher.Constraint("Vertical", 34),
    Sketcher.Constraint("Horizontal", 35),
    Sketcher.Constraint("Vertical", 36),
    Sketcher.Constraint("Horizontal", 37),
    Sketcher.Constraint("Vertical", 38),
    Sketcher.Constraint("Horizontal", 39),
    Sketcher.Constraint("Vertical", 40),
    Sketcher.Constraint("Horizontal", 41),
    Sketcher.Constraint("Vertical", 42),
    Sketcher.Constraint("Horizontal", 43),
    Sketcher.Constraint("Vertical", 44),
    Sketcher.Constraint("Horizontal", 45),
    Sketcher.Constraint("Vertical", 46),
    Sketcher.Constraint("Horizontal", 47),
    Sketcher.Constraint("Vertical", 48),
    Sketcher.Constraint("Horizontal", 49),
    Sketcher.Constraint("Vertical", 50),
    Sketcher.Constraint("Horizontal", 51),
    Sketcher.Constraint("Vertical", 52),
    Sketcher.Constraint("Horizontal", 53),
    Sketcher.Constraint("Vertical", 54),
    Sketcher.Constraint("Horizontal", 55),
    Sketcher.Constraint("Symmetric", 18, 2, 20, 2, -1, 1),
    Sketcher.Constraint("Symmetric", 16, 2, 22, 2, -1, 1),
    Sketcher.Constraint("Symmetric", 14, 2, 24, 2, -1, 1),
    Sketcher.Constraint("Symmetric", 12, 2, 26, 2, -1, 1),
    Sketcher.Constraint("Symmetric", 10, 2, 28, 2, -1, 1),
    Sketcher.Constraint("Symmetric", 8, 2, 30, 2, -1, 1),
    Sketcher.Constraint("Symmetric", 6, 2, 32, 2, -1, 1),
    Sketcher.Constraint("Symmetric", 4, 2, 34, 2, -1, 1),
    Sketcher.Constraint("Symmetric", 2, 2, 36, 2, -1, 1),
    Sketcher.Constraint("Symmetric", 0, 2, 38, 2, -1, 1),
    Sketcher.Constraint("Symmetric", 46, 2, 48, 2, -1, 1),
    Sketcher.Constraint("Symmetric", 44, 2, 50, 2, -1, 1),
    Sketcher.Constraint("Symmetric", 42, 2, 52, 2, -1, 1),
    Sketcher.Constraint("Symmetric", 40, 2, 54, 2, -1, 1),
    Sketcher.Constraint("Horizontal", 1, 2, 4, 2),
    Sketcher.Constraint("Horizontal", 3, 2, 6, 2),
    Sketcher.Constraint("Horizontal", 5, 2, 8, 2),
    Sketcher.Constraint("Horizontal", 7, 2, 10, 2),
    Sketcher.Constraint("Horizontal", 9, 2, 12, 2),
    Sketcher.Constraint("Horizontal", 11, 2, 14, 2),
    Sketcher.Constraint("Horizontal", 13, 2, 16, 2),
    Sketcher.Constraint("Horizontal", 15, 2, 18, 2),
    Sketcher.Constraint("Horizontal", 17, 2, 20, 2),
    Sketcher.Constraint("Horizontal", 37, 2, 40, 2),
    Sketcher.Constraint("Horizontal", 39, 2, 42, 2),
    Sketcher.Constraint("Horizontal", 41, 2, 44, 2),
    Sketcher.Constraint("Horizontal", 43, 2, 46, 2),
    Sketcher.Constraint("Equal", 3, 5),
    Sketcher.Constraint("Equal", 7, 9),
    Sketcher.Constraint("Equal", 11, 13),
    Sketcher.Constraint("Equal", 15, 17),
    Sketcher.Constraint("Equal", 39, 41),
    Sketcher.Constraint("Equal", 43, 45),
    Sketcher.Constraint("DistanceX", 1, 1, 1, 2, 3.0),
    Sketcher.Constraint("DistanceY", 0, 2, 0, 1, 65.0),
    Sketcher.Constraint("DistanceX", 1, 2, 4, 2, 7.0),
    Sketcher.Constraint("DistanceX", 5, 2, 8, 2, 7.0),
    Sketcher.Constraint("DistanceX", 9, 2, 12, 2, 7.0),
    Sketcher.Constraint("DistanceX", 13, 2, 16, 2, 7.0),
    Sketcher.Constraint("DistanceX", 17, 2, 20, 2, 7.0),
    Sketcher.Constraint("DistanceX", 37, 2, 40, 2, 7.0),
    Sketcher.Constraint("DistanceX", 41, 2, 44, 2, 7.0),
])
pad8 = body.newObject("PartDesign::Pad", "Pad007")
pad8.Profile = sketch8
pad8.Length = 1

# Sketch on XY plane
sketch9 = body.newObject("Sketcher::SketchObject", "Sketch008")
sketch9.AttachmentSupport = (doc.getObject("XY_Plane"), [""])
sketch9.MapMode = "FlatFace"
sketch9.AttachmentOffset = App.Placement(App.Vector(0, 0, -37.5), App.Rotation())
sketch9.addGeometry(Part.Circle(App.Vector(-65, 10.5, 0), App.Vector(0, 0, 1), 4), False)
sketch9.addConstraint([
    Sketcher.Constraint("Diameter", 0, 8.0),
    Sketcher.Constraint("DistanceX", 0, 3, -1, 1, 65.0),
    Sketcher.Constraint("DistanceY", -1, 1, 0, 3, 10.5),
])
pocket1 = body.newObject("PartDesign::Pocket", "Pocket")
pocket1.Profile = sketch9
pocket1.Type = "ThroughAll"
pocket1.Midplane = True

doc.recompute()
